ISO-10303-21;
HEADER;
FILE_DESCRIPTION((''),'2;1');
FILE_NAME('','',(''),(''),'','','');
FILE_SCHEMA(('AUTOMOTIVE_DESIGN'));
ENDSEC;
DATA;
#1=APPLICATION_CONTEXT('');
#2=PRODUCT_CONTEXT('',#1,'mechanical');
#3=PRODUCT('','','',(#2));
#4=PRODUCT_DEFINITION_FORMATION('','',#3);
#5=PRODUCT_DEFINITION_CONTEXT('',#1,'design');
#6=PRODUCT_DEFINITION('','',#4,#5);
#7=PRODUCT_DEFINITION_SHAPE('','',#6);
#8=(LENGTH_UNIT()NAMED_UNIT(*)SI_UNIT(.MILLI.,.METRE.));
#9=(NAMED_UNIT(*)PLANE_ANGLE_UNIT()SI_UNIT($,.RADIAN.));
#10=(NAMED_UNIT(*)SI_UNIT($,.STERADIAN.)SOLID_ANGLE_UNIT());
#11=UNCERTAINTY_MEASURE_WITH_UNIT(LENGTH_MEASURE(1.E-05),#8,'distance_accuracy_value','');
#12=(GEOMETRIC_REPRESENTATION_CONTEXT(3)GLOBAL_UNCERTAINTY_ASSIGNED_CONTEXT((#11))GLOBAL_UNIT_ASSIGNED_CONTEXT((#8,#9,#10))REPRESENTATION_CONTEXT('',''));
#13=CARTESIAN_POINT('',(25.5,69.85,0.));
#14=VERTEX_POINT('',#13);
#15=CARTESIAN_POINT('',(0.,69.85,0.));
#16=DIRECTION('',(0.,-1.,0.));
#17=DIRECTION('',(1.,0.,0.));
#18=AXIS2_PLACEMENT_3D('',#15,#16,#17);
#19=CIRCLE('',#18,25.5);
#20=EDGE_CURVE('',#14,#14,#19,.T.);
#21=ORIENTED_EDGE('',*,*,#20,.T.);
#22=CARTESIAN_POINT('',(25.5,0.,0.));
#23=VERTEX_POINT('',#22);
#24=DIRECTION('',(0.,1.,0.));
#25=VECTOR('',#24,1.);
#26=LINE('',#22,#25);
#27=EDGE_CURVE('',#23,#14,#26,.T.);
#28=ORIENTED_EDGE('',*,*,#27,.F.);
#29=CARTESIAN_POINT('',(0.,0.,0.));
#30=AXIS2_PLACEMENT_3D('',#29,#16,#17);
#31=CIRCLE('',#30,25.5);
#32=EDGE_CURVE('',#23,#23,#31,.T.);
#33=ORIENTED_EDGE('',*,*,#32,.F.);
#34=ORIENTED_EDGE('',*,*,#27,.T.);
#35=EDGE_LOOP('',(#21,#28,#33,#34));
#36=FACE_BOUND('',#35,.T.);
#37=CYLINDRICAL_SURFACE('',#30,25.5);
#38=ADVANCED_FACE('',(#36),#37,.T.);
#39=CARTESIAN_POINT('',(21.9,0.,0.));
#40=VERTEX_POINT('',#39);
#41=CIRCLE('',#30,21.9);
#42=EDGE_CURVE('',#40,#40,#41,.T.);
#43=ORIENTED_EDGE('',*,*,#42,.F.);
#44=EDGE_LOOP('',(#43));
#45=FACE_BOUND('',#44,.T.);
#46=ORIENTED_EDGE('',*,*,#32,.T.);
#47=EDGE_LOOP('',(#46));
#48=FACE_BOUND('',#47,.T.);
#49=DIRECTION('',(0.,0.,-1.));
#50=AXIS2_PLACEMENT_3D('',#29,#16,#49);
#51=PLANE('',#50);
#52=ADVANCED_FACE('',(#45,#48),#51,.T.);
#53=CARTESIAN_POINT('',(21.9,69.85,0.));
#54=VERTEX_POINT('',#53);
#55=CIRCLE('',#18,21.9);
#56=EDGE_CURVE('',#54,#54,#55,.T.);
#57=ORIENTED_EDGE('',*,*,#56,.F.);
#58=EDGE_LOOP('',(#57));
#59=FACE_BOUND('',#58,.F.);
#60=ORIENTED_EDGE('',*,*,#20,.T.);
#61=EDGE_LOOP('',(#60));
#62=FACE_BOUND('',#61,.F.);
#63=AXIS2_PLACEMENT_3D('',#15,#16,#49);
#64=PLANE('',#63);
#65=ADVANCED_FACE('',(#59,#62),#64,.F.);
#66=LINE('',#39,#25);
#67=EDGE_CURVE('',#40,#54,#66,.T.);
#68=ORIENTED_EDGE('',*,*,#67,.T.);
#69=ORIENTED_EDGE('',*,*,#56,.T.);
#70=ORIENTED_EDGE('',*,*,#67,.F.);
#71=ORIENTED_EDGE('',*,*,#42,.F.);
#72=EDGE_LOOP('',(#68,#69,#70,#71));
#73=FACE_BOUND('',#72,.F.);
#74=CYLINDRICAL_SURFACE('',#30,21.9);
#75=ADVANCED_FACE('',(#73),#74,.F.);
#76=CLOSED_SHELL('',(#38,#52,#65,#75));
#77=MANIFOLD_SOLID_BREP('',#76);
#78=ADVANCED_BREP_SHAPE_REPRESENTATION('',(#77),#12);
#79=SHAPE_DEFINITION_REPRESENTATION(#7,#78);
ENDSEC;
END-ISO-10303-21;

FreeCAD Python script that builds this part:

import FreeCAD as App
import Part
import Sketcher
from FreeCAD import Vector

doc = App.newDocument("Part")
body = doc.addObject("PartDesign::Body", "Body")

sketch1 = body.newObject("Sketcher::SketchObject", "Sketch")
sketch1.AttachmentSupport = (doc.getObject("XZ_Plane"), [""])
sketch1.MapMode = "FlatFace"
sketch1.addGeometry([
    Part.Circle(Vector(0, 0, 0), Vector(0, 0, 1), 26),
    Part.Circle(Vector(0, 0, 0), Vector(0, 0, 1), 22),
], False)
sketch1.addConstraint([
    Sketcher.Constraint("Coincident", 0, 3, -1, 1),
    Sketcher.Constraint("Coincident", 1, 3, -1, 1),
    Sketcher.Constraint("Diameter", 0, 51.0),
    Sketcher.Constraint("Diameter", 1, 43.8),
])
pad1 = body.newObject("PartDesign::Pad", "Pad")
pad1.Profile = sketch1
pad1.Length = 69.85
pad1.Reversed = True

doc.recompute()
